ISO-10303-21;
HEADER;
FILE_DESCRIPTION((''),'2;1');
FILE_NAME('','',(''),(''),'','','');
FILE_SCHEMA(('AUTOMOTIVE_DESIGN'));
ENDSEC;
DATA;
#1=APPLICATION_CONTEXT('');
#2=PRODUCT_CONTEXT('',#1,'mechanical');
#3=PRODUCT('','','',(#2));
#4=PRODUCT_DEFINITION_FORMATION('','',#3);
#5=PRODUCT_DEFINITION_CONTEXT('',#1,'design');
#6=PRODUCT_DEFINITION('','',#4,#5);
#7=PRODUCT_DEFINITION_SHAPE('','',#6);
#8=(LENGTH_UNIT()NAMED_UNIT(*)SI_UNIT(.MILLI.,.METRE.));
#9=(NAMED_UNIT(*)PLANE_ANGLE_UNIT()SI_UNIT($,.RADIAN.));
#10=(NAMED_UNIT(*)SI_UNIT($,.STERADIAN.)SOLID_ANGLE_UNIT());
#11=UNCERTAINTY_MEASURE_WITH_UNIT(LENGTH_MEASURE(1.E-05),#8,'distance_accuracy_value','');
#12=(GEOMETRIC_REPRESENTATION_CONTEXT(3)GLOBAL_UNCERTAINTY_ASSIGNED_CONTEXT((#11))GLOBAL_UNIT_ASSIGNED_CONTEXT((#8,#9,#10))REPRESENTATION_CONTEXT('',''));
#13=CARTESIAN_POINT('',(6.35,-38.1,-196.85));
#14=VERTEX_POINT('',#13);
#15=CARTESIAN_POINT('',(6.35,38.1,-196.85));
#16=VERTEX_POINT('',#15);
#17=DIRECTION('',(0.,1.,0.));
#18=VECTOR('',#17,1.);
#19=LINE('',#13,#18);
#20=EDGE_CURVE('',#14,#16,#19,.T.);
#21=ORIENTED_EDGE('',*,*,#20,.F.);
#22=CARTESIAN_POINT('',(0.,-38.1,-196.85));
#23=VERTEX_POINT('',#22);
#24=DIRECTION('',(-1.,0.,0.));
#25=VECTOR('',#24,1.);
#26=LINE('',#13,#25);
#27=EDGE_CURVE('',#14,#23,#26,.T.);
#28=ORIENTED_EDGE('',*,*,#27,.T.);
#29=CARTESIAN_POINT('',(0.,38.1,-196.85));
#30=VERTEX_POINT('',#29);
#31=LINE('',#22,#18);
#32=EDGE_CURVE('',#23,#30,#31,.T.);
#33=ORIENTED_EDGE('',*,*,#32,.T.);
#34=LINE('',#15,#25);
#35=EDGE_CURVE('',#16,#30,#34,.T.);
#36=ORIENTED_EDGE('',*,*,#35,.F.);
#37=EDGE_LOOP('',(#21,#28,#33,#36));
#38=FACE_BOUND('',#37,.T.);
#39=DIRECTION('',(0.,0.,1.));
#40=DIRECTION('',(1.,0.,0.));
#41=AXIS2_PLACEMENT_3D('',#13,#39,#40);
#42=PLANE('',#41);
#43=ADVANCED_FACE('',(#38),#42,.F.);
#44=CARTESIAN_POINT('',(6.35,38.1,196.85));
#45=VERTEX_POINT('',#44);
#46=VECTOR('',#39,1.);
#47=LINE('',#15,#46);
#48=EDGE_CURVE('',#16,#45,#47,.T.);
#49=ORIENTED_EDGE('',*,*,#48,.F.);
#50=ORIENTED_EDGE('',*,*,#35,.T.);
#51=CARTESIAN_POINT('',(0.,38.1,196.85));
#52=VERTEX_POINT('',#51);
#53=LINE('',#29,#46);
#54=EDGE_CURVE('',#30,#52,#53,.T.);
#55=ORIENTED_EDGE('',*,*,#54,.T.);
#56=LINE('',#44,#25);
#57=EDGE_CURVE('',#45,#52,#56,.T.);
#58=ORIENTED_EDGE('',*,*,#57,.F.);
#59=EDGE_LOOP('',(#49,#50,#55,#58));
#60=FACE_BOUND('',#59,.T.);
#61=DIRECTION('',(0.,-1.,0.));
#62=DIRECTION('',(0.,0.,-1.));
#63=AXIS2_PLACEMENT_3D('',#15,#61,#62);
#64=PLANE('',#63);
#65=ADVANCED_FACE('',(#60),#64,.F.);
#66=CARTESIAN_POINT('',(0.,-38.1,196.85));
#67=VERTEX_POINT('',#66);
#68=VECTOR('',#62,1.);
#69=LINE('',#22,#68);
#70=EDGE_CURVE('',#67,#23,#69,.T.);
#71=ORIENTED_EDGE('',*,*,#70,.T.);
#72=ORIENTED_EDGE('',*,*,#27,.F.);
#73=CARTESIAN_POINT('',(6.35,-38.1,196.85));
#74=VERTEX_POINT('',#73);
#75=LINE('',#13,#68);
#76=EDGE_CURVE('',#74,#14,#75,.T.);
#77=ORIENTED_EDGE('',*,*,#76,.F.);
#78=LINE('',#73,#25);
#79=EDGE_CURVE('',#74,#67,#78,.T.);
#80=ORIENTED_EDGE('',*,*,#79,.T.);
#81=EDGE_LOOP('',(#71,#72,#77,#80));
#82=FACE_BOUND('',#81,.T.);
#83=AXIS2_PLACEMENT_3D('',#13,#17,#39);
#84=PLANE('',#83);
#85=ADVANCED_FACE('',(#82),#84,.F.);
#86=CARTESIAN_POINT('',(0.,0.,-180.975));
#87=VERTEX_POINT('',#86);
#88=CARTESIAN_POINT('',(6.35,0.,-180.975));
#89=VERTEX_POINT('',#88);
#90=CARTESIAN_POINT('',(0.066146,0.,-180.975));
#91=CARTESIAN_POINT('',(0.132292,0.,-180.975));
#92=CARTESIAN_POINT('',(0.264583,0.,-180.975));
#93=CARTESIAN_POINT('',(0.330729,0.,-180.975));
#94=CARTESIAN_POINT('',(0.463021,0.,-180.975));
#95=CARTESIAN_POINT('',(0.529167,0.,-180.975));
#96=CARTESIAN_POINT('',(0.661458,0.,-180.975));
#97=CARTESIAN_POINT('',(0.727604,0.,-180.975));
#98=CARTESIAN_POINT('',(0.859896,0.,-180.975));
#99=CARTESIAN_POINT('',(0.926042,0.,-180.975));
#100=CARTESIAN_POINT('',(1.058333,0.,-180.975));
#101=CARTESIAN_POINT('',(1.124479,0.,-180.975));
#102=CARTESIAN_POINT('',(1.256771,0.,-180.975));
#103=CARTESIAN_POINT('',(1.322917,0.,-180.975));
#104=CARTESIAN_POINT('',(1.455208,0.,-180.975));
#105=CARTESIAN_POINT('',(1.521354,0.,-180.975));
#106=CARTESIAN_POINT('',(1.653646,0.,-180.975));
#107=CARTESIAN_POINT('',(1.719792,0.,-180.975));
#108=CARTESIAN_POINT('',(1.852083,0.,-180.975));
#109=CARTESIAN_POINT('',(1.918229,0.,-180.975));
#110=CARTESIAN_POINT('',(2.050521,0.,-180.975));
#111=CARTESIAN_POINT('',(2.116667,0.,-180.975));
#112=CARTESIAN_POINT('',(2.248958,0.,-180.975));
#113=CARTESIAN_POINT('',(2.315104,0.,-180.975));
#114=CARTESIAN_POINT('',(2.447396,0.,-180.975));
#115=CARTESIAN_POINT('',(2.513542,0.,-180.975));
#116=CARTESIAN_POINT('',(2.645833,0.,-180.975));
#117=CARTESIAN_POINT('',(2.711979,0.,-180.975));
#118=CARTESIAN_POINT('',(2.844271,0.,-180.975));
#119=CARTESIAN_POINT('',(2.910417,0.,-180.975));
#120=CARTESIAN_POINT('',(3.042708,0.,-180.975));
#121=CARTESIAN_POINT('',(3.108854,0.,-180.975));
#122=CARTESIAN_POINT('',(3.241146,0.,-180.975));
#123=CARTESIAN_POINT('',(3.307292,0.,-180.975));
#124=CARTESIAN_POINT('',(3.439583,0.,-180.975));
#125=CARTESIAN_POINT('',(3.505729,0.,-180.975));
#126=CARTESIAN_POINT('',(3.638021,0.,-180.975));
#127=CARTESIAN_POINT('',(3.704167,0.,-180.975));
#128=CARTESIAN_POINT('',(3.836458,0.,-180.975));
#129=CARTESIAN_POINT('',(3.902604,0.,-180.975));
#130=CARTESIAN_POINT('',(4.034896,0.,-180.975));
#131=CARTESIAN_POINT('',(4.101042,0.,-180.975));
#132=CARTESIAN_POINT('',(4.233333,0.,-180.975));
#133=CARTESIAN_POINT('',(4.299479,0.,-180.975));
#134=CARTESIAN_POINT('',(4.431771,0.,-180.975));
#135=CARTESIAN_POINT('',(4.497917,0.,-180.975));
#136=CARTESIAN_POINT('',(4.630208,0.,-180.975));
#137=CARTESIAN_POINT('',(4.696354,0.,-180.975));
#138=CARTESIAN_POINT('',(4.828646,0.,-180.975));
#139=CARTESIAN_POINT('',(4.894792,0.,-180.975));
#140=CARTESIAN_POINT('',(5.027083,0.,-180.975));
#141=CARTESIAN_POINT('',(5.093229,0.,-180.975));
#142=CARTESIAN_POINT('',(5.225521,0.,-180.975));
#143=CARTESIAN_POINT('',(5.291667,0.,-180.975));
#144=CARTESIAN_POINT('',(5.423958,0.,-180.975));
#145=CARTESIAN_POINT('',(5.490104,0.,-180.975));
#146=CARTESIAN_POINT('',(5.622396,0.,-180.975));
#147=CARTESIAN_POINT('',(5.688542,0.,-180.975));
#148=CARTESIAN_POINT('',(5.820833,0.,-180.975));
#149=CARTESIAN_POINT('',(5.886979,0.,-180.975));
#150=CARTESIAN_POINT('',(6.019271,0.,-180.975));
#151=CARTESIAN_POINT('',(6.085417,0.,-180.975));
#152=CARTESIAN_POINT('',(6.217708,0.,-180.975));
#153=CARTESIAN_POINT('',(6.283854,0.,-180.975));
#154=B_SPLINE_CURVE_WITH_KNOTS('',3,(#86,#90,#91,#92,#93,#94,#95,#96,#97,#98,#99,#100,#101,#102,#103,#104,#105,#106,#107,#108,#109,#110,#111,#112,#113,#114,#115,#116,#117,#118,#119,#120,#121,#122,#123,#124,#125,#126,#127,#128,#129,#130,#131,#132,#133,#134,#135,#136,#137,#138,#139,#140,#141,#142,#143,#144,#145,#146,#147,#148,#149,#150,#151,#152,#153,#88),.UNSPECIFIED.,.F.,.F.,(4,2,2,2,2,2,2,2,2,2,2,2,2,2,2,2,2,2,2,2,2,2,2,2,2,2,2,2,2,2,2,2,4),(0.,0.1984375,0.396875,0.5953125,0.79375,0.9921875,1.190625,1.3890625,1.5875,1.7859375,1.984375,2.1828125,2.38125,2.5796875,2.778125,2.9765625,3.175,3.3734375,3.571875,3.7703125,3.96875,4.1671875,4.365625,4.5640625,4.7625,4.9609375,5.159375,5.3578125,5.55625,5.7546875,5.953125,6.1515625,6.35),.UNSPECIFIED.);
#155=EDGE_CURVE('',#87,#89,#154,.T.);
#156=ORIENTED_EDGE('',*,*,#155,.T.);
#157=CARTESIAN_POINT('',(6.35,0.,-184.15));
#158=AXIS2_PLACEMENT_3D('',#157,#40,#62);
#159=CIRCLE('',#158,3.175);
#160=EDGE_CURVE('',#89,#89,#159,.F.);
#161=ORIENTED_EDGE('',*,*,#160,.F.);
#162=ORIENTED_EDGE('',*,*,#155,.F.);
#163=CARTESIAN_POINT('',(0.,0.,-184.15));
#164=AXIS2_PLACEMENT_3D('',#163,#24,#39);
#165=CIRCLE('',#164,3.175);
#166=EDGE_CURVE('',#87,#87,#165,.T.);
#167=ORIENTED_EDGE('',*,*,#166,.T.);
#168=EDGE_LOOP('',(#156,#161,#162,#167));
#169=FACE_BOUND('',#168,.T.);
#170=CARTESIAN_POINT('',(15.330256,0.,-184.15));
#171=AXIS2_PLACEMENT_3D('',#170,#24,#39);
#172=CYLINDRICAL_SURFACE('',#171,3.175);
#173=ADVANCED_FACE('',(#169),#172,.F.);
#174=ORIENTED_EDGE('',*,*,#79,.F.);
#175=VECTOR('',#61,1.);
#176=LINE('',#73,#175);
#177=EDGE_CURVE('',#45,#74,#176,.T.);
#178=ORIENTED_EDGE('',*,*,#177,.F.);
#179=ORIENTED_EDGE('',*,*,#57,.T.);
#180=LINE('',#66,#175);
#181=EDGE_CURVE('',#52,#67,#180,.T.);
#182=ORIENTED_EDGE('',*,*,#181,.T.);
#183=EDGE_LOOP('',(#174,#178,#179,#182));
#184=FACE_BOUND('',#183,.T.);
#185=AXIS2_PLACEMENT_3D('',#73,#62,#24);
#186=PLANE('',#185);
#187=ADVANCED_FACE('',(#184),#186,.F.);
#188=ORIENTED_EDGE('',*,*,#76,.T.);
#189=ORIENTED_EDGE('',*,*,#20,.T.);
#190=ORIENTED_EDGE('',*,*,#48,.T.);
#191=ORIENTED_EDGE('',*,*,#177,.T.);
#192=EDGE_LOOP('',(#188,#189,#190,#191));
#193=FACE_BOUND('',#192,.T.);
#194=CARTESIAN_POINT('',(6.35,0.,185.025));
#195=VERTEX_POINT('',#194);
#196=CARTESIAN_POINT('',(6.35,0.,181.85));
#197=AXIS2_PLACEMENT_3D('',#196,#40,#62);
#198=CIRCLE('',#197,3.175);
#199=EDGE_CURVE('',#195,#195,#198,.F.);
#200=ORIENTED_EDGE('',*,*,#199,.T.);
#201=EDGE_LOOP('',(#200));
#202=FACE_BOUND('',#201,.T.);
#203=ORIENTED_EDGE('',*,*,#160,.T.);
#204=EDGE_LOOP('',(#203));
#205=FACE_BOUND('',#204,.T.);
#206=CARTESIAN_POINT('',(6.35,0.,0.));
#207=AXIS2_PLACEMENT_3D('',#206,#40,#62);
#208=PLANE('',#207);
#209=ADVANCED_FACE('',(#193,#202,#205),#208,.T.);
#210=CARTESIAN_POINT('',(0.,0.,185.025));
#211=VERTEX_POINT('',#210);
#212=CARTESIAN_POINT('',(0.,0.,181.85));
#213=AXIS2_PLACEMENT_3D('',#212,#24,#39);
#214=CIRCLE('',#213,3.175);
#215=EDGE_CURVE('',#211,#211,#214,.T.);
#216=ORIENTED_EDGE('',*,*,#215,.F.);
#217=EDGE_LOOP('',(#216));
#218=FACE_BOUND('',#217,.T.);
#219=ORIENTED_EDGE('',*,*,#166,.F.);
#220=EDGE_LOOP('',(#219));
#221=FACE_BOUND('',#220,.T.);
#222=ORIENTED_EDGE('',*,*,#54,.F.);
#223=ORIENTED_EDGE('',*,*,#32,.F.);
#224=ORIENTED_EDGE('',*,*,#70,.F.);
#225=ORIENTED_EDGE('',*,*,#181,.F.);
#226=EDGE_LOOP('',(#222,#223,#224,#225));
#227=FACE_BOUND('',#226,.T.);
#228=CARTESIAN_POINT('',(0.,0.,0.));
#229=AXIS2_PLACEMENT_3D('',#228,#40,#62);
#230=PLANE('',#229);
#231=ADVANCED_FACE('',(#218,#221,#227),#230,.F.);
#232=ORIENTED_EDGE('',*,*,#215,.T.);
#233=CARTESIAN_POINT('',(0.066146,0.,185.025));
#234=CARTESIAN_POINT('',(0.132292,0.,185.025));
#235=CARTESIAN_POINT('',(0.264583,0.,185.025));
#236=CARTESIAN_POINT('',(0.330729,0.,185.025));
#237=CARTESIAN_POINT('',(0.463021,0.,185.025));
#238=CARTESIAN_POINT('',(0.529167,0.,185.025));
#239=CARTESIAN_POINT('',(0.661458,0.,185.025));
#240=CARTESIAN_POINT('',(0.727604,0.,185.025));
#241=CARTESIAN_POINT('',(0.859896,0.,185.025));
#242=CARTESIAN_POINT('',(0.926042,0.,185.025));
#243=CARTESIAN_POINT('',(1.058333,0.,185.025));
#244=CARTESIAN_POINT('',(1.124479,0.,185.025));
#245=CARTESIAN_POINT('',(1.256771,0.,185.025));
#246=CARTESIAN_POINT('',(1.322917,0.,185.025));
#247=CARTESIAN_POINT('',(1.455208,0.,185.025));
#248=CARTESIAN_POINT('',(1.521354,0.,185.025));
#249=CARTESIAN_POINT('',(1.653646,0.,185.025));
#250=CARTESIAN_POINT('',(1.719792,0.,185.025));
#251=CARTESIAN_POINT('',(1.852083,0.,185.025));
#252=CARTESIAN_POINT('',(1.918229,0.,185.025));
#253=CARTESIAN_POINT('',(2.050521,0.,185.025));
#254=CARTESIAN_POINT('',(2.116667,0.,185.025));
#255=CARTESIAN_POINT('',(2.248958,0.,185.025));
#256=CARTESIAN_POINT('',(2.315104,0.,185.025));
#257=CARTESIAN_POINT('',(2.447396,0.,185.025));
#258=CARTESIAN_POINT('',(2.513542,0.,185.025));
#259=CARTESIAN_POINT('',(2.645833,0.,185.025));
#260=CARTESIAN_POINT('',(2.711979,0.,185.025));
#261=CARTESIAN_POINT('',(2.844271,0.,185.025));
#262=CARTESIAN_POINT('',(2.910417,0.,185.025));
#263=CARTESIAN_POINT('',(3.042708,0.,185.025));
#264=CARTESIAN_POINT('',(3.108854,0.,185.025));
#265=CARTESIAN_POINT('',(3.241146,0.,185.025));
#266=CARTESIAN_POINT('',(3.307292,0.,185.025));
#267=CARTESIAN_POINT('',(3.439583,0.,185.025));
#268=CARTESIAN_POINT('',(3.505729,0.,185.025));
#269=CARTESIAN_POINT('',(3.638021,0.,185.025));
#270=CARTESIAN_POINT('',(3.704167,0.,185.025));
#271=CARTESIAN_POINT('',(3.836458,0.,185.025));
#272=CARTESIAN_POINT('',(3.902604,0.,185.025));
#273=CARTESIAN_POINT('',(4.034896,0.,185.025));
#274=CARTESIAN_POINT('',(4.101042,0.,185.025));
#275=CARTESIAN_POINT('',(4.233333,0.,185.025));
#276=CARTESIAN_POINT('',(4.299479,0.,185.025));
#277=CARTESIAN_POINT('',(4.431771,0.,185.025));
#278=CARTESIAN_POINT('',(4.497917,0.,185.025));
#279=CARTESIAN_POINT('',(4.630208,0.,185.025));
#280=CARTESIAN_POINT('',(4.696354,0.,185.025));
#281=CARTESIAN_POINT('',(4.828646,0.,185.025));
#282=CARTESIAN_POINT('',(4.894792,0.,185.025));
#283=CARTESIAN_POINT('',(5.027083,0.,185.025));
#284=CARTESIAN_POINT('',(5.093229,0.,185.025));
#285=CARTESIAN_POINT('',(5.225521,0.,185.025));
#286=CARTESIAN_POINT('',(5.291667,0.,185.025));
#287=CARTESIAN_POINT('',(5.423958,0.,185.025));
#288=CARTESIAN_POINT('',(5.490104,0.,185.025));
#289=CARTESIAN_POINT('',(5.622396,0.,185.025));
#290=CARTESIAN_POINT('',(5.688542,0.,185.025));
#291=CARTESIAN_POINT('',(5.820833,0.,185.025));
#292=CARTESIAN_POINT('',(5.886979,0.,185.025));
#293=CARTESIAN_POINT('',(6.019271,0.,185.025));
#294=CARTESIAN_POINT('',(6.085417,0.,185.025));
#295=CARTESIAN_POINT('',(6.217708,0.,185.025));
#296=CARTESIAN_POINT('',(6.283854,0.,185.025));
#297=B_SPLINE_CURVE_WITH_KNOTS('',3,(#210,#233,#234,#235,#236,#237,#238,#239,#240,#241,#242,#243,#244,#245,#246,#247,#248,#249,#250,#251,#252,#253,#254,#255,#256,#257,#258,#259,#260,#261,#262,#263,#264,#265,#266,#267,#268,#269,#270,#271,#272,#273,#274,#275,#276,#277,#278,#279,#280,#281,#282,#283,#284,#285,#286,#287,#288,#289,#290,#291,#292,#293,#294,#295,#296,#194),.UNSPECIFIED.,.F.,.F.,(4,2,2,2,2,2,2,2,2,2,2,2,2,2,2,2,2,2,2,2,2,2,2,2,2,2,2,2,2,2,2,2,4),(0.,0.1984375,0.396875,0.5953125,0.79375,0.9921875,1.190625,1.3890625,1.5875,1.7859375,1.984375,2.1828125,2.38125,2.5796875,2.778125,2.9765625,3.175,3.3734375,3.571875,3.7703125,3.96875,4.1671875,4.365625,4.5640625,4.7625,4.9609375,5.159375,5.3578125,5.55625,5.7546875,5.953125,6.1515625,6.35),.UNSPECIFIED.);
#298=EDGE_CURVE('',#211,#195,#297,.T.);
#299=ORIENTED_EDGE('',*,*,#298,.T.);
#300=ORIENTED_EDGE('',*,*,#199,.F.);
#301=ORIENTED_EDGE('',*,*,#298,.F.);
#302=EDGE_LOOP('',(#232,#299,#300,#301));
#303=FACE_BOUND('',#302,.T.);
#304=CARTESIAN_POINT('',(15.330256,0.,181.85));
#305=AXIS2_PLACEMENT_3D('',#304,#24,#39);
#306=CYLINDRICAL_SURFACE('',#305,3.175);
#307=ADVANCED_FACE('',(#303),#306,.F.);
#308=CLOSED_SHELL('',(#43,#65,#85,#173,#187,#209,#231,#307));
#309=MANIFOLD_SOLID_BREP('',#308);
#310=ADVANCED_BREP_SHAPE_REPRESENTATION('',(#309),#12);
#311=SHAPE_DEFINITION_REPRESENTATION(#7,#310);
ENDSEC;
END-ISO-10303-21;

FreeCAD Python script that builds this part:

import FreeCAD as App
import Part
import Sketcher

V = App.Vector
Q = App.Units.Quantity

doc = App.newDocument("Part")
body = doc.addObject("PartDesign::Body", "Body")

# Sketch on YZ plane
sketch1 = body.newObject("Sketcher::SketchObject", "Sketch")
sketch1.AttachmentSupport = (doc.getObject("YZ_Plane"), [""])
sketch1.MapMode = "FlatFace"
sketch1.addGeometry([
    Part.LineSegment(V(38, 197, 0), V(-38, 197, 0)),
    Part.LineSegment(V(-38, 197, 0), V(-38, -197, 0)),
    Part.LineSegment(V(-38, -197, 0), V(38, -197, 0)),
    Part.LineSegment(V(38, -197, 0), V(38, 197, 0)),
], False)
sketch1.addConstraint([
    Sketcher.Constraint("Coincident", 0, 2, 1, 1),
    Sketcher.Constraint("Coincident", 1, 2, 2, 1),
    Sketcher.Constraint("Coincident", 2, 2, 3, 1),
    Sketcher.Constraint("Coincident", 3, 2, 0, 1),
    Sketcher.Constraint("Horizontal", 0),
    Sketcher.Constraint("Vertical", 1),
    Sketcher.Constraint("Horizontal", 2),
    Sketcher.Constraint("Vertical", 3),
    Sketcher.Constraint("Symmetric", 0, 2, 2, 2, -1, 1),
    Sketcher.Constraint("DistanceX", 0, 2, 0, 1, Q("3 in")),
    Sketcher.Constraint("DistanceY", 1, 2, 1, 1, Q("15.5 in")),
])
pad1 = body.newObject("PartDesign::Pad", "Pad")
pad1.Profile = sketch1
pad1.Length = Q("0.25 in")

# Sketch on YZ plane
sketch2 = body.newObject("Sketcher::SketchObject", "Sketch001")
sketch2.AttachmentSupport = (doc.getObject("YZ_Plane"), [""])
sketch2.MapMode = "FlatFace"
sketch2.addGeometry(Part.Circle(V(0, 181.8, 0), V(0, 0, 1), 3.2), False)
sketch2.addConstraint([
    Sketcher.Constraint("PointOnObject", 0, 3, -2),
    Sketcher.Constraint("Diameter", 0, Q("0.25 in")),
    Sketcher.Constraint("DistanceY", -1, 1, 0, 3, Q("181.85 mm")),
])
pocket1 = body.newObject("PartDesign::Pocket", "Pocket")
pocket1.Profile = sketch2
pocket1.Length = Q("0.25 in")
pocket1.Reversed = True

# Sketch on YZ plane
sketch3 = body.newObject("Sketcher::SketchObject", "Sketch002")
sketch3.AttachmentSupport = (doc.getObject("YZ_Plane"), [""])
sketch3.MapMode = "FlatFace"
sketch3.addGeometry(Part.Circle(V(0, -184.2, 0), V(0, 0, 1), 3.2), False)
sketch3.addConstraint([
    Sketcher.Constraint("PointOnObject", 0, 3, -2),
    Sketcher.Constraint("Diameter", 0, Q("0.25 in")),
    Sketcher.Constraint("DistanceY", 0, 3, -1, 1, Q("7.25 in")),
])
pocket2 = body.newObject("PartDesign::Pocket", "Pocket001")
pocket2.Profile = sketch3
pocket2.Length = Q("0.25 in")
pocket2.Reversed = True

doc.recompute()
